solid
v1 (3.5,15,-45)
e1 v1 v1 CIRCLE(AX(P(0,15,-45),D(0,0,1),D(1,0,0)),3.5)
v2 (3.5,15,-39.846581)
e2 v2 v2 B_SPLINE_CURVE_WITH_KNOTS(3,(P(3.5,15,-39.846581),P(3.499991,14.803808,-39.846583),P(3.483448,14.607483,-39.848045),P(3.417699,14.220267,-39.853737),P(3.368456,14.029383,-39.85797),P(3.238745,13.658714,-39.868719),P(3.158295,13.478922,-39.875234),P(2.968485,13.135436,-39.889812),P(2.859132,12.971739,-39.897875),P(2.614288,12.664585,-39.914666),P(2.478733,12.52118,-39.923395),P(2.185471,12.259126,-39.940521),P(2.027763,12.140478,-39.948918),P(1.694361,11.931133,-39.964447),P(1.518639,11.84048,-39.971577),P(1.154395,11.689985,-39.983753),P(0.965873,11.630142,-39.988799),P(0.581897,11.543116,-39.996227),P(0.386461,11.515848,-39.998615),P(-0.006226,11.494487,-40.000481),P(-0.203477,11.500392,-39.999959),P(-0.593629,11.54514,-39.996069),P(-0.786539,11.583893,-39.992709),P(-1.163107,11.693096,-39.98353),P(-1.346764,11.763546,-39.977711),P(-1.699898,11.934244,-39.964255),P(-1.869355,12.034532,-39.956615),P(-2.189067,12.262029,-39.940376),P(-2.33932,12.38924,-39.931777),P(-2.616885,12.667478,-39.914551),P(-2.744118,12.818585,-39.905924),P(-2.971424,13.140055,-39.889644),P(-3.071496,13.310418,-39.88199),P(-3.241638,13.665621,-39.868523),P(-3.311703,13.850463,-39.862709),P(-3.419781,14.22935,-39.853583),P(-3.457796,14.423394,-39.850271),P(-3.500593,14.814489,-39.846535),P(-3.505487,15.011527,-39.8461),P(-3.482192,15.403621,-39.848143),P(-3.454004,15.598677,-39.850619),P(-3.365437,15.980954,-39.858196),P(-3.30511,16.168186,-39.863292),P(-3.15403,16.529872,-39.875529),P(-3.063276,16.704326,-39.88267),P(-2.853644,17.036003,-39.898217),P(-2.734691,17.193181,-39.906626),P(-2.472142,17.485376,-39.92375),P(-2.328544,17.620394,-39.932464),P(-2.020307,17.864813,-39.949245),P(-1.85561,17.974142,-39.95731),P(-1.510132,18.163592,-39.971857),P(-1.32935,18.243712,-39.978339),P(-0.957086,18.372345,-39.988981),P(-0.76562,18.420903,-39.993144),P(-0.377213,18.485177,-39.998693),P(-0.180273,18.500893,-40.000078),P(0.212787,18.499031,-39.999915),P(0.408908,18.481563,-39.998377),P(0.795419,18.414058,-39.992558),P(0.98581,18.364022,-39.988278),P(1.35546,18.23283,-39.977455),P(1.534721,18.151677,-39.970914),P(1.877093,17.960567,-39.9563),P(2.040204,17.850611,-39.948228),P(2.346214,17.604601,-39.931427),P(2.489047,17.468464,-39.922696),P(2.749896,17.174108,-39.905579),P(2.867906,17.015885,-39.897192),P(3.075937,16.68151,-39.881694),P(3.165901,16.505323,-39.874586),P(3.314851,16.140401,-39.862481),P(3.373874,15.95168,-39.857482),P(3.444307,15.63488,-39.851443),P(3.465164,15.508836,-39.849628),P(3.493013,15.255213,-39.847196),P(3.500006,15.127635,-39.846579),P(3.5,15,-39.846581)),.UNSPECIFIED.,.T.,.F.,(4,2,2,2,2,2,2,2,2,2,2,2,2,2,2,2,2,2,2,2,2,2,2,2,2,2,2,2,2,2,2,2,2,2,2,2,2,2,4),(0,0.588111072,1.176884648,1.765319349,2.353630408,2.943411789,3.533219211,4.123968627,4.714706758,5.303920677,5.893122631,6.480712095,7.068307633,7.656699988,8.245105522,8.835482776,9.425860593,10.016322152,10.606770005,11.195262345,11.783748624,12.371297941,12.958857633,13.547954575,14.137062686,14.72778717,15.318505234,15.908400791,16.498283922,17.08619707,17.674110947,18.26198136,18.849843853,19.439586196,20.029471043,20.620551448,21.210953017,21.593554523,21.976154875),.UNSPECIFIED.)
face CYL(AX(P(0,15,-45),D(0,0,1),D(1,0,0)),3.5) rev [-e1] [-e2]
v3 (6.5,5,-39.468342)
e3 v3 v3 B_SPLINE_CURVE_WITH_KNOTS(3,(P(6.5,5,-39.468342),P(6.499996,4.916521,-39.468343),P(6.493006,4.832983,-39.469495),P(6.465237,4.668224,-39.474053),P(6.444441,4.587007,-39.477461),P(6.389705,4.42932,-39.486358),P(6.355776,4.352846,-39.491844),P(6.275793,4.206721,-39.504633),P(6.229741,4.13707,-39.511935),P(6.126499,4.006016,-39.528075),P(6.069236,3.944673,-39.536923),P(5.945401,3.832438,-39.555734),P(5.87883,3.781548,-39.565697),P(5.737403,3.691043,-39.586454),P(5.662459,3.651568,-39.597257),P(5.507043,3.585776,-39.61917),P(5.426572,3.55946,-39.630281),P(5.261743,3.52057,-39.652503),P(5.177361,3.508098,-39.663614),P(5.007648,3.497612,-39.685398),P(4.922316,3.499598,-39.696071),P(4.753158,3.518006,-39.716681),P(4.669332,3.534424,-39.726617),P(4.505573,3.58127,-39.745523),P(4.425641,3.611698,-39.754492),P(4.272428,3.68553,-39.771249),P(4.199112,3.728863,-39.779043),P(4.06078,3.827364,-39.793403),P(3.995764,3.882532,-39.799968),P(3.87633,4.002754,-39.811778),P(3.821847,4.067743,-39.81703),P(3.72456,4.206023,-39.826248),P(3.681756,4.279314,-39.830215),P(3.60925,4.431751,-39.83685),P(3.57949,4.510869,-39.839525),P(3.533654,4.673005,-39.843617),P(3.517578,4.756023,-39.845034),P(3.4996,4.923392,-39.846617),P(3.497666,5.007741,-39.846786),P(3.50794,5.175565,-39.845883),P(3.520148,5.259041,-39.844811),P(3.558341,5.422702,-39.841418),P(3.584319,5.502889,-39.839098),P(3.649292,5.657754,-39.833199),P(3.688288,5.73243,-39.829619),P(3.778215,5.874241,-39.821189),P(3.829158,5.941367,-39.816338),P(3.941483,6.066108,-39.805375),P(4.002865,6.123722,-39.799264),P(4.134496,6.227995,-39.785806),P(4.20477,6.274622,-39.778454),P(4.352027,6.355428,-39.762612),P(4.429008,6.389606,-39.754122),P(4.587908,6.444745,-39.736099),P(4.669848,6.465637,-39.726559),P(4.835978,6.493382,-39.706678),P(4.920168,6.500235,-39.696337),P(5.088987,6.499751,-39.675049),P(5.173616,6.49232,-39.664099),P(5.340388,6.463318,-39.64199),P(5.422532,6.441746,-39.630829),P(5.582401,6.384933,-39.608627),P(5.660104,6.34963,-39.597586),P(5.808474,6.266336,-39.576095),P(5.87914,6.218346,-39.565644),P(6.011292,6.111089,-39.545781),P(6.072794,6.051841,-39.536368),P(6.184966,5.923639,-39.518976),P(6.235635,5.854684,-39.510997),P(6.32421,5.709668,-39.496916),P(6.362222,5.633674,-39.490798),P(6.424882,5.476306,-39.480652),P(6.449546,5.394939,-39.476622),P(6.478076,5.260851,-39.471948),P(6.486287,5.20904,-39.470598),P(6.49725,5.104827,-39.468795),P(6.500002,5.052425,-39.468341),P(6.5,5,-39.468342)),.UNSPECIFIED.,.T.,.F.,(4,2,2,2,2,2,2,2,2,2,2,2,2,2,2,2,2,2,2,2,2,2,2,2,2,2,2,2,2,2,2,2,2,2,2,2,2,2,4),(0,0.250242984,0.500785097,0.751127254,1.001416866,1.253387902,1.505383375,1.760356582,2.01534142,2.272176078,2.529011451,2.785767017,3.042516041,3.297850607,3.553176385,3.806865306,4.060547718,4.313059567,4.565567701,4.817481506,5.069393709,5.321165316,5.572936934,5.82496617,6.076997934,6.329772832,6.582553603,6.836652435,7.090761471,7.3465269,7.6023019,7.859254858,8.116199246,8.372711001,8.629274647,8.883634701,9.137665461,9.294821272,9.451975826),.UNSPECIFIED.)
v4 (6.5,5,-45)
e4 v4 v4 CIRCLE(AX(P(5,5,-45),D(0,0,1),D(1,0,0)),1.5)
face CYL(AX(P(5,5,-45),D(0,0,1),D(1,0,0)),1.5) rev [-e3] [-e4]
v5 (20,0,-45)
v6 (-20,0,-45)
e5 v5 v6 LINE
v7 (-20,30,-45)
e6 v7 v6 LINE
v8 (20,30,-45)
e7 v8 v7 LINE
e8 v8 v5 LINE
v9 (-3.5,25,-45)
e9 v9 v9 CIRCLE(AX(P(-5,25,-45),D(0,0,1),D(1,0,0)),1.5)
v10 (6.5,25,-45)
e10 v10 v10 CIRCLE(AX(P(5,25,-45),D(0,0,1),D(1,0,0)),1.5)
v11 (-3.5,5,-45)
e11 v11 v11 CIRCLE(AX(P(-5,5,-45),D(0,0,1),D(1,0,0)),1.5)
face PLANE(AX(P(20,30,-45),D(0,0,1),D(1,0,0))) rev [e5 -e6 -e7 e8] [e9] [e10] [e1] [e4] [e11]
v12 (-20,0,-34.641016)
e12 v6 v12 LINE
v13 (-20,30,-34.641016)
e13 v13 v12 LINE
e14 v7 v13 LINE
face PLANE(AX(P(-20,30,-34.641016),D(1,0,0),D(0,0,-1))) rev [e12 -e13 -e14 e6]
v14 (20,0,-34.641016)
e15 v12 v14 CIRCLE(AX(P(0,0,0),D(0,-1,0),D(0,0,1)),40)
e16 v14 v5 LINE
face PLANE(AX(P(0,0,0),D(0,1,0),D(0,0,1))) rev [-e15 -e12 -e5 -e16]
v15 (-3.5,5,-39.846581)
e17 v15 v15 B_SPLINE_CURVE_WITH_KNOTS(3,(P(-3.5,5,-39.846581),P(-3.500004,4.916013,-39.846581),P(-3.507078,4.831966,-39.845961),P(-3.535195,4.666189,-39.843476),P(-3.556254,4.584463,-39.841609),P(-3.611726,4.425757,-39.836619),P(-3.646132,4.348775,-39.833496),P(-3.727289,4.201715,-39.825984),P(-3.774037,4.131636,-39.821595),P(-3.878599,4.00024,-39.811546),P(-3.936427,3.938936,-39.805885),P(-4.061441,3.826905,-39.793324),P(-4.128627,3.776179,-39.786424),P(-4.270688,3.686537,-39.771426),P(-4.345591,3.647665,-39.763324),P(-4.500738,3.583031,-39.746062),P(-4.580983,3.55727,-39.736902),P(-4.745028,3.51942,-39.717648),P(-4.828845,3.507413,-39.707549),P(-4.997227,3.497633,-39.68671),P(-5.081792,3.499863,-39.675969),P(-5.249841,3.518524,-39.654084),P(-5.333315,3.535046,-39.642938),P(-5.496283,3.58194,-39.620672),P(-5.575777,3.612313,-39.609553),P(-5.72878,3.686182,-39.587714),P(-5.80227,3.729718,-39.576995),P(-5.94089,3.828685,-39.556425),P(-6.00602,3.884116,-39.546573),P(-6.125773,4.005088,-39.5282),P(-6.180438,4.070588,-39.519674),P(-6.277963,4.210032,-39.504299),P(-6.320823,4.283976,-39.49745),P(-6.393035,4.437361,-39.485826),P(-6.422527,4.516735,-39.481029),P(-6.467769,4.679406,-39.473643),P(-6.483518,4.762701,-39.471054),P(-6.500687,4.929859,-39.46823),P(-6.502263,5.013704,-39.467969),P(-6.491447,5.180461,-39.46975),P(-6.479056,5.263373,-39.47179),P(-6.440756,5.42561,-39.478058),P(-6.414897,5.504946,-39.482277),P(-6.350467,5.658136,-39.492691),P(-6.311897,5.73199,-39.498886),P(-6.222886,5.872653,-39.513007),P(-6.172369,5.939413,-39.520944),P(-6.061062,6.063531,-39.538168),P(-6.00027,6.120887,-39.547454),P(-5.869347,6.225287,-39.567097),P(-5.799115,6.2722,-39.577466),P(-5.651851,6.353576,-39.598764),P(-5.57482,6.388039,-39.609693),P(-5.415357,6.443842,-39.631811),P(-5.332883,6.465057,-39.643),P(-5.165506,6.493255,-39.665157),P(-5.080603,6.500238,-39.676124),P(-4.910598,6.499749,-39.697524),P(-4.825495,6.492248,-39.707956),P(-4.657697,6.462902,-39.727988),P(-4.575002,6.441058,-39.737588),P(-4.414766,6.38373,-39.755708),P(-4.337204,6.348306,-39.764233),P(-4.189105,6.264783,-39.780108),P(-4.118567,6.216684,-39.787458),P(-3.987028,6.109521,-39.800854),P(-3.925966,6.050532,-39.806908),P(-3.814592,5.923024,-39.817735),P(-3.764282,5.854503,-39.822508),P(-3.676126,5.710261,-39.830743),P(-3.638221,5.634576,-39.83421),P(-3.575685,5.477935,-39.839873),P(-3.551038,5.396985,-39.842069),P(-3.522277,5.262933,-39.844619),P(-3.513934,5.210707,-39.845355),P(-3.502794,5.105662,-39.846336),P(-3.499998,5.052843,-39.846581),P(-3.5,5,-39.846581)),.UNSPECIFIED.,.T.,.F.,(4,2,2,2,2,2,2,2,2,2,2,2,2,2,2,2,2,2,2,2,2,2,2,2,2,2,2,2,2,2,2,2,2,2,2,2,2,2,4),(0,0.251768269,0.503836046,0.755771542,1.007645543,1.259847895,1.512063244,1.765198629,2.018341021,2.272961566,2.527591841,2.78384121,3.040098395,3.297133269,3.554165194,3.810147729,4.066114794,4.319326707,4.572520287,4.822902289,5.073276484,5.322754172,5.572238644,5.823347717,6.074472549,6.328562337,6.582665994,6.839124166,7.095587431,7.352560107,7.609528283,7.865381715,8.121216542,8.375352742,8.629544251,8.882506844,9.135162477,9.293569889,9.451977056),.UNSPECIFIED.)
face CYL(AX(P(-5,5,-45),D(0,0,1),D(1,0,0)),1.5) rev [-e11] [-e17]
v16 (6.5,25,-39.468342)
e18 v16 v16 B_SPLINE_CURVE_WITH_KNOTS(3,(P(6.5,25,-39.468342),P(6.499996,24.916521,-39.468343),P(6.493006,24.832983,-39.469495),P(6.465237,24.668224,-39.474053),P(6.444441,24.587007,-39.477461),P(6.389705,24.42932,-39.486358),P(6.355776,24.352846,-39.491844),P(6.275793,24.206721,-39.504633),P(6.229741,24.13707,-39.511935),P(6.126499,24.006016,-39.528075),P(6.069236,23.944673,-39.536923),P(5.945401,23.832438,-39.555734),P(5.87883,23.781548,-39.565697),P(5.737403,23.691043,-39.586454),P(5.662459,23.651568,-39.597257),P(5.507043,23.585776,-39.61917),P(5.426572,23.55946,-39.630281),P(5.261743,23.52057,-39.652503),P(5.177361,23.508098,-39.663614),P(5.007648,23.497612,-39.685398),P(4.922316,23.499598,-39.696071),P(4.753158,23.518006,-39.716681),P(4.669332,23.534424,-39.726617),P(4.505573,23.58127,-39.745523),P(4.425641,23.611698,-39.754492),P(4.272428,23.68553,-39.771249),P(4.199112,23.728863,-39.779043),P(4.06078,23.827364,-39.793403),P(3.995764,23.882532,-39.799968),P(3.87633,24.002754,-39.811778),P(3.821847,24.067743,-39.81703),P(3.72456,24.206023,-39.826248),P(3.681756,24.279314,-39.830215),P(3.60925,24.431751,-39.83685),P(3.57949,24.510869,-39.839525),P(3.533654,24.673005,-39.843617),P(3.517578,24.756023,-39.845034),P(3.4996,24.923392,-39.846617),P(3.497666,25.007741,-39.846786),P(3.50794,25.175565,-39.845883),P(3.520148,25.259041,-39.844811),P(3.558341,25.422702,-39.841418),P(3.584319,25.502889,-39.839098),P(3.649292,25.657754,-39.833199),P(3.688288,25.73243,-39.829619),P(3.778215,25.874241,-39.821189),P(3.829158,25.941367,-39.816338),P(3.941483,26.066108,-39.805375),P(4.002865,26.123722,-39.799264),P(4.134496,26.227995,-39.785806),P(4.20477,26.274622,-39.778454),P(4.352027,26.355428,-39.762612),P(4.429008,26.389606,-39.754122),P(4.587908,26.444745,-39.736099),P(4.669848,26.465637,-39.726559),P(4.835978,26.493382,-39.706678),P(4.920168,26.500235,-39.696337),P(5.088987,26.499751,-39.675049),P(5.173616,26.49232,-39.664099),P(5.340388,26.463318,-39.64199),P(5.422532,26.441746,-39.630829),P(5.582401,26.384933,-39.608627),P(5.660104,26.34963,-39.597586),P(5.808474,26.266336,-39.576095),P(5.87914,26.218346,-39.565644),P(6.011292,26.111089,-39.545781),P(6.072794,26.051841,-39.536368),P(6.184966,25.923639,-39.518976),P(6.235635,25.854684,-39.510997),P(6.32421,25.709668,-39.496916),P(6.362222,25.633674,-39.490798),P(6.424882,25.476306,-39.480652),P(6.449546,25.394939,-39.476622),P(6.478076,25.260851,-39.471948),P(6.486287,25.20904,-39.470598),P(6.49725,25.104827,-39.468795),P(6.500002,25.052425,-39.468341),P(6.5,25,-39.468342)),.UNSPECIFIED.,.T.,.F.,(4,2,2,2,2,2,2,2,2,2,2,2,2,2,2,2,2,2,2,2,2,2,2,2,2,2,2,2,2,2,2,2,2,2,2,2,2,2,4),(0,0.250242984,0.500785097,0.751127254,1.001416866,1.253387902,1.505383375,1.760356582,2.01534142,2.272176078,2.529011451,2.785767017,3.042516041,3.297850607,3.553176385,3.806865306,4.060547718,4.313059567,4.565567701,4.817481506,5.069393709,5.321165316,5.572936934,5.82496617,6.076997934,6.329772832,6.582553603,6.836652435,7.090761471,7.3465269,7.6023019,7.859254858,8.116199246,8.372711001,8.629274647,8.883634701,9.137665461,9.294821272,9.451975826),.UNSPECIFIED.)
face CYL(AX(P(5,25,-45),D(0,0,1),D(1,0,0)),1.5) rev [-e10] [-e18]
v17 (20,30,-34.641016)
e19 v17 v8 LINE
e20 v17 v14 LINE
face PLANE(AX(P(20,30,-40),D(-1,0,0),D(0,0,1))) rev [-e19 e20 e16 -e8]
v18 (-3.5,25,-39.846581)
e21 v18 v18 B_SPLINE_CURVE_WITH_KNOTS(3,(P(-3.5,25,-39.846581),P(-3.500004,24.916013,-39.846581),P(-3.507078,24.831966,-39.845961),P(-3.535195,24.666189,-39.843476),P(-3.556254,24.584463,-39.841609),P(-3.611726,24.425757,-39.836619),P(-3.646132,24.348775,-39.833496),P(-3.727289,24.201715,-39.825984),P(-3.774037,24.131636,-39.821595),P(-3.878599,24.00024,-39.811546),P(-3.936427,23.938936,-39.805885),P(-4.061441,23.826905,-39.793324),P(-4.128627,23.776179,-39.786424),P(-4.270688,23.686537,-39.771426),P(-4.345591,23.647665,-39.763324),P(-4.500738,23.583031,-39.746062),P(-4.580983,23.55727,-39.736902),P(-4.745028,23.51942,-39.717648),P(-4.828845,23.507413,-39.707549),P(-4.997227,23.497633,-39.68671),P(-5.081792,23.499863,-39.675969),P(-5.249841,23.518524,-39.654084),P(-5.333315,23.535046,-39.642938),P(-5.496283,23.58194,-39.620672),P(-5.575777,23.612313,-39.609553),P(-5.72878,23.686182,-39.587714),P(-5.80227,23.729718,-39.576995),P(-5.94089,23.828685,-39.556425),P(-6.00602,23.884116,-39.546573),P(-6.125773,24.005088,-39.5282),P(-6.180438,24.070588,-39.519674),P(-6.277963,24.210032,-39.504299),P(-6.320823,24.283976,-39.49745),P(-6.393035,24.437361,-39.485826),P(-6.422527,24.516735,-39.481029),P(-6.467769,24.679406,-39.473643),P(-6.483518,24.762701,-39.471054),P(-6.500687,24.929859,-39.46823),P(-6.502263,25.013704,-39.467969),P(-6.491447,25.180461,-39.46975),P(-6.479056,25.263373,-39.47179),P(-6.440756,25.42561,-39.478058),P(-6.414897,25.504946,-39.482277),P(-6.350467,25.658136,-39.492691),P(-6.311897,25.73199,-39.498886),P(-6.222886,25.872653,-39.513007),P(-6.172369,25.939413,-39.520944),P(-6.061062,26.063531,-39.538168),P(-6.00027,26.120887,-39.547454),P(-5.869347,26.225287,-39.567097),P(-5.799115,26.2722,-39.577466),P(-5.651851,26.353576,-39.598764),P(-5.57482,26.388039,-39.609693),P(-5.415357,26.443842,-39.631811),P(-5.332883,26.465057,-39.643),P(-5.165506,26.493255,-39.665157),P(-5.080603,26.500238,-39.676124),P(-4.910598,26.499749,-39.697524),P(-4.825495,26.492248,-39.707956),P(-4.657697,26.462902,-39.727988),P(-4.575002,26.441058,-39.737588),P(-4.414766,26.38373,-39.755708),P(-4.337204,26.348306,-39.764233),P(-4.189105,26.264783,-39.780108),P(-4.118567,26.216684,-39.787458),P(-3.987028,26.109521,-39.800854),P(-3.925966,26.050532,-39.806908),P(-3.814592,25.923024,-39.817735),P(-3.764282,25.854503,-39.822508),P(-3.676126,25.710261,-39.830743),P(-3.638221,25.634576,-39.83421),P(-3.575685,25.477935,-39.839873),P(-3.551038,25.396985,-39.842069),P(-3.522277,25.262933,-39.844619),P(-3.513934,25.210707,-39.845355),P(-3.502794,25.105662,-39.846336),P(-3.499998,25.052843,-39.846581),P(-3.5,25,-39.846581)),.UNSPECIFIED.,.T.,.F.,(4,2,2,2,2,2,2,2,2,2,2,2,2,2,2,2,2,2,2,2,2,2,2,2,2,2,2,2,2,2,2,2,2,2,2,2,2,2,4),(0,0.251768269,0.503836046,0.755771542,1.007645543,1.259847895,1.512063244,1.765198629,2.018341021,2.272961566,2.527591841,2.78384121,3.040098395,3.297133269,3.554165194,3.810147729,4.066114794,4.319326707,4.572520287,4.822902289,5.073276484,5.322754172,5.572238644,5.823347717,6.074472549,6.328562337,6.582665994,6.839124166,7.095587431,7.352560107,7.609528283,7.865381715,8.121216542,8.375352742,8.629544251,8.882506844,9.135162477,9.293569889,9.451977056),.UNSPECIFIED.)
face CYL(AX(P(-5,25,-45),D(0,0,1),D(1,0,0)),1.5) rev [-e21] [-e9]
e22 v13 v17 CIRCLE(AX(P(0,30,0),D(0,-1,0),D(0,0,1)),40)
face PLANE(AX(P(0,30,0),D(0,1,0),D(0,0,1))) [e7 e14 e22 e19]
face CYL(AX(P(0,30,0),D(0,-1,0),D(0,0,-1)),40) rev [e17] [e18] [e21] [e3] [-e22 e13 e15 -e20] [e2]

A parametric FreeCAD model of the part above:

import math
import FreeCAD as App
import Part
import Sketcher

V = App.Vector
Q = App.Units.Quantity

doc = App.newDocument("Part")
params = doc.addObject("Spreadsheet::Sheet", "Params")
for row, (alias, value) in enumerate([
    ("sketch1_radius", "40 mm"),
    ("sketch1_width", "40 mm"),
    ("pad1_length", "30 mm"),
    ("sketch2_diameter", "3 mm"),
    ("sketch2_diameter2", "7 mm"),
], start=1):
    params.set(f"A{row}", alias)
    params.set(f"B{row}", "=" + value)
    params.setAlias(f"B{row}", alias)

body = doc.addObject("PartDesign::Body", "Body")

# Sketch on XZ plane
sketch1 = body.newObject("Sketcher::SketchObject", "Sketch")
sketch1.AttachmentSupport = (doc.getObject("XZ_Plane"), [""])
sketch1.MapMode = "FlatFace"
sketch1.addGeometry(Part.ArcOfCircle(Part.Circle(V(0, 0, 0), V(0, 0, 1), 40), math.radians(-120), math.radians(-60)), False)
sketch1.addGeometry(Part.LineSegment(V(20, -35, 0), V(20, -45, 0)), False)
sketch1.addGeometry(Part.LineSegment(V(20, -45, 0), V(-20, -45, 0)), False)
sketch1.addGeometry(Part.LineSegment(V(-20, -45, 0), V(-20, -35, 0)), False)
sketch1.addConstraint(Sketcher.Constraint("Coincident", 0, 2, 1, 1))
sketch1.addConstraint(Sketcher.Constraint("Coincident", 1, 2, 2, 1))
sketch1.addConstraint(Sketcher.Constraint("Coincident", 2, 2, 3, 1))
sketch1.addConstraint(Sketcher.Constraint("Coincident", 3, 2, 0, 1))
sketch1.addConstraint(Sketcher.Constraint("Vertical", 1))
sketch1.addConstraint(Sketcher.Constraint("Horizontal", 2))
sketch1.addConstraint(Sketcher.Constraint("Vertical", 3))
sketch1.addConstraint(Sketcher.Constraint("Coincident", 0, 3, -1, 1))
sketch1.addConstraint(Sketcher.Constraint("Horizontal", 0, 2, 3, 2))
sketch1.addConstraint(Sketcher.Constraint("Radius", 0, Q("40 mm")))
sketch1.addConstraint(Sketcher.Constraint("DistanceX", 2, 2, 2, 1, Q("40 mm")))
sketch1.addConstraint(Sketcher.Constraint("DistanceY", 1, 2, -1, 1, Q("45 mm")))
sketch1.setExpression("Constraints[9]", "Params.sketch1_radius")
sketch1.setExpression("Constraints[10]", "Params.sketch1_width")
pad1 = body.newObject("PartDesign::Pad", "Pad")
pad1.Profile = sketch1
pad1.setExpression("Length", "Params.pad1_length")
pad1.Reversed = True

# Sketch on XY plane
sketch2 = body.newObject("Sketcher::SketchObject", "Sketch001")
sketch2.AttachmentSupport = (doc.getObject("XY_Plane"), [""])
sketch2.MapMode = "FlatFace"
sketch2.addGeometry(Part.Circle(V(-5, 5, 0), V(0, 0, 1), 1.5), False)
sketch2.addGeometry(Part.Circle(V(5, 5, 0), V(0, 0, 1), 1.5), False)
sketch2.addGeometry(Part.Circle(V(5, 25, 0), V(0, 0, 1), 1.5), False)
sketch2.addGeometry(Part.Circle(V(-5, 25, 0), V(0, 0, 1), 1.5), False)
sketch2.addGeometry(Part.Circle(V(0, 15, 0), V(0, 0, 1), 3.5), False)
sketch2.addConstraint(Sketcher.Constraint("Equal", 0, 1))
sketch2.addConstraint(Sketcher.Constraint("Equal", 1, 2))
sketch2.addConstraint(Sketcher.Constraint("Equal", 2, 3))
sketch2.addConstraint(Sketcher.Constraint("Symmetric", 0, 3, 1, 3, -2))
sketch2.addConstraint(Sketcher.Constraint("Symmetric", 2, 3, 3, 3, -2))
sketch2.addConstraint(Sketcher.Constraint("PointOnObject", 4, 3, -2))
sketch2.addConstraint(Sketcher.Constraint("Vertical", 1, 3, 2, 3))
sketch2.addConstraint(Sketcher.Constraint("Diameter", 0, Q("3 mm")))
sketch2.addConstraint(Sketcher.Constraint("Diameter", 4, Q("7 mm")))
sketch2.addConstraint(Sketcher.Constraint("DistanceX", 0, 3, -1, 1, Q("5 mm")))
sketch2.addConstraint(Sketcher.Constraint("DistanceY", -1, 1, 0, 3, Q("5 mm")))
sketch2.addConstraint(Sketcher.Constraint("DistanceY", -1, 1, 2, 3, Q("25 mm")))
sketch2.addConstraint(Sketcher.Constraint("DistanceY", -1, 1, 4, 3, Q("15 mm")))
sketch2.setExpression("Constraints[7]", "Params.sketch2_diameter")
sketch2.setExpression("Constraints[8]", "Params.sketch2_diameter2")
pocket1 = body.newObject("PartDesign::Pocket", "Pocket")
pocket1.Profile = sketch2
pocket1.Type = "ThroughAll"

doc.recompute()
